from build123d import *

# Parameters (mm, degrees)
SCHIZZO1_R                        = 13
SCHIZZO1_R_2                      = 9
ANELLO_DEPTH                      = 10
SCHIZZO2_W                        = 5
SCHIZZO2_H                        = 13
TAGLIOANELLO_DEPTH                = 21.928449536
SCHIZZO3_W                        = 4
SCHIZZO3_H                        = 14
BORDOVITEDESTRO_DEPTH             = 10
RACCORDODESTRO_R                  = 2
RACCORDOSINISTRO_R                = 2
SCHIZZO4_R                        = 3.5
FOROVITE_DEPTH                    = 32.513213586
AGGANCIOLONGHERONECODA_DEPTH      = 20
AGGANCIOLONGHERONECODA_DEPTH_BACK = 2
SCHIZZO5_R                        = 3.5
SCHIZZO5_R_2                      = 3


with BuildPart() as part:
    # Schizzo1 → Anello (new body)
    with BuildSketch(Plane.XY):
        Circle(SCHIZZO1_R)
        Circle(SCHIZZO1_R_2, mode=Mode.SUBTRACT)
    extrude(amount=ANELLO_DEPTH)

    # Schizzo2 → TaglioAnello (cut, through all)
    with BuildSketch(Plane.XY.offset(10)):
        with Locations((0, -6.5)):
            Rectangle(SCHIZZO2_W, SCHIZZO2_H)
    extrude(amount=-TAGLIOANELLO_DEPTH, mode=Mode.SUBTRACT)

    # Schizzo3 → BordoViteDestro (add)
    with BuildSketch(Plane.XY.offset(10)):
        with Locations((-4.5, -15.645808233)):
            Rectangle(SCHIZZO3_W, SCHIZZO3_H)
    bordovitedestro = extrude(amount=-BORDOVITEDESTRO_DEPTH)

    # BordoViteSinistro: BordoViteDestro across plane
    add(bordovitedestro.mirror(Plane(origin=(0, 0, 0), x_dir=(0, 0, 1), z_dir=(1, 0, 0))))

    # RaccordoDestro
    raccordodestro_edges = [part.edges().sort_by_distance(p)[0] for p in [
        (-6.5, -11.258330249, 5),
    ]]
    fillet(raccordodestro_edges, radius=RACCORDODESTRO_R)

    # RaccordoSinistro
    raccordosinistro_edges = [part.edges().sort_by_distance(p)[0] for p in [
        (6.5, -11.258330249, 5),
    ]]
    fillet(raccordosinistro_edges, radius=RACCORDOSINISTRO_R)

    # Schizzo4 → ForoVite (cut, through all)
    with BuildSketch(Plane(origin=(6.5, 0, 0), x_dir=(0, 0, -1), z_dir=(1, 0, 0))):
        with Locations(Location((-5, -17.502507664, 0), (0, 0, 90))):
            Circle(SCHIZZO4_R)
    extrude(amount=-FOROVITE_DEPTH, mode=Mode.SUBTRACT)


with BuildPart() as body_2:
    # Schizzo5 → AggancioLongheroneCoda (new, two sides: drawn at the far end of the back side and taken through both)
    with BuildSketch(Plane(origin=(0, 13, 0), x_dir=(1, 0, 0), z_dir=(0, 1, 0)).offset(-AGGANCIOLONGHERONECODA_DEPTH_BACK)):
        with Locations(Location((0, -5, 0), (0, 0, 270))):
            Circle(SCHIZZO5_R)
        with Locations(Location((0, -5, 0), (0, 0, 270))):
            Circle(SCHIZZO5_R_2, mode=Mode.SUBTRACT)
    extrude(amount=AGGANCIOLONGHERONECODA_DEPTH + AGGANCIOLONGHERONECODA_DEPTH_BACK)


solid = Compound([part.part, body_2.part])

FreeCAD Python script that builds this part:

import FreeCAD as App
import Part
import Sketcher
Q = App.Units.Quantity


def edges_at(feature, points):
    """Names of the edges that pass closest to the given points."""
    edges = feature.Shape.Edges
    near = lambda p: min(range(len(edges)), key=lambda i: edges[i].distToShape(Part.Vertex(*p))[0])
    return sorted({f"Edge{near(p) + 1}" for p in points})


def add_polygon(sketch, points):
    """Adds a closed chain of lines whose ends are joined by coincident constraints."""
    first, n = sketch.GeometryCount, len(points)
    for a, b in zip(points, points[1:] + points[:1]):
        sketch.addGeometry(Part.LineSegment(App.Vector(*a, 0), App.Vector(*b, 0)), False)
    for i in range(n):
        sketch.addConstraint(Sketcher.Constraint("Coincident", first + i, 2, first + (i + 1) % n, 1))

doc = App.newDocument("Part")
body = doc.addObject("PartDesign::Body", "Body")

# Sketch on XY plane
sketch1 = doc.addObject("Sketcher::SketchObject", "Sketch")
body.addObject(sketch1)
sketch1.AttachmentSupport = (doc.XY_Plane, [""])
sketch1.MapMode = "FlatFace"
sketch1.addGeometry([
    Part.Circle(App.Vector(0, 0, 0), App.Vector(0, 0, 1), 13),
    Part.Circle(App.Vector(0, 0, 0), App.Vector(0, 0, 1), 9),
], False)
sketch1.addConstraint([
    Sketcher.Constraint("Coincident", 0, 3, -1, 1),
    Sketcher.Constraint("Coincident", 1, 3, -1, 1),
    Sketcher.Constraint("Diameter", 0, Q("26 mm")),
    Sketcher.Constraint("Diameter", 1, Q("18 mm")),
])
pad1 = doc.addObject("PartDesign::Pad", "Pad")
body.addObject(pad1)
pad1.Profile = sketch1
pad1.Length = 10

# Sketch on XY plane
sketch2 = doc.addObject("Sketcher::SketchObject", "Sketch001")
body.addObject(sketch2)
sketch2.AttachmentSupport = (doc.XY_Plane, [""])
sketch2.MapMode = "FlatFace"
sketch2.AttachmentOffset = App.Placement(App.Vector(0, 0, 10), App.Rotation())
add_polygon(sketch2, [(-2, 0), (-2, -13), (2, -13), (2, 0)])  # lines 0-3
sketch2.addConstraint([
    Sketcher.Constraint("Vertical", 0),
    Sketcher.Constraint("Horizontal", 1),
    Sketcher.Constraint("Vertical", 2),
    Sketcher.Constraint("Horizontal", 3),
    Sketcher.Constraint("Symmetric", 2, 2, 3, 2, -1, 1),
    Sketcher.Constraint("DistanceX", 1, 1, 1, 2, Q("5 mm")),
    Sketcher.Constraint("DistanceY", 0, 2, 0, 1, Q("13 mm")),
])
pocket1 = doc.addObject("PartDesign::Pocket", "Pocket")
body.addObject(pocket1)
pocket1.Profile = sketch2
pocket1.Type = "ThroughAll"

# Sketch on XY plane
sketch3 = doc.addObject("Sketcher::SketchObject", "Sketch002")
body.addObject(sketch3)
sketch3.AttachmentSupport = (doc.XY_Plane, [""])
sketch3.MapMode = "FlatFace"
sketch3.AttachmentOffset = App.Placement(App.Vector(0, 0, 10), App.Rotation())
add_polygon(sketch3, [(-6.5, -8.6), (-6.5, -22.6), (-2.5, -22.6), (-2.5, -8.6)])  # lines 0-3
sketch3.addConstraint([
    Sketcher.Constraint("Vertical", 0),
    Sketcher.Constraint("Horizontal", 1),
    Sketcher.Constraint("Vertical", 2),
    Sketcher.Constraint("Horizontal", 3),
    Sketcher.Constraint("DistanceX", 1, 1, 1, 2, Q("4 mm")),
    Sketcher.Constraint("DistanceY", 0, 2, 0, 1, Q("14 mm")),
    Sketcher.Constraint("DistanceX", 0, 2, -1, 1, Q("6.5 mm")),
    Sketcher.Constraint("DistanceY", 0, 2, -1, 1, Q("22.645808 mm")),
])
pad2 = doc.addObject("PartDesign::Pad", "Pad001")
body.addObject(pad2)
pad2.Profile = sketch3
pad2.Length = 10
pad2.Reversed = True
doc.recompute()

mirrored = doc.addObject("PartDesign::Mirrored", "Mirrored")
body.addObject(mirrored)
mirrored.Originals = [pad2]
mirrored.MirrorPlane = (doc.YZ_Plane, [""])
body.Tip = mirrored
doc.recompute()

fillet = doc.addObject("PartDesign::Fillet", "Fillet")
body.addObject(fillet)
fillet.Base = (mirrored, edges_at(mirrored, [(-6.5, -11.258, 5)]))
fillet.Radius = 2
doc.recompute()

fillet2 = doc.addObject("PartDesign::Fillet", "Fillet001")
body.addObject(fillet2)
fillet2.Base = (fillet, edges_at(fillet, [(6.5, -11.258, 5)]))
fillet2.Radius = 2

# Sketch on YZ plane
sketch4 = doc.addObject("Sketcher::SketchObject", "Sketch003")
body.addObject(sketch4)
sketch4.AttachmentSupport = (doc.YZ_Plane, [""])
sketch4.MapMode = "FlatFace"
sketch4.AttachmentOffset = App.Placement(App.Vector(0, 0, 6.5), App.Rotation())
sketch4.addGeometry(Part.Circle(App.Vector(-17.5, 5, 0), App.Vector(0, 0, 1), 3.5), False)
sketch4.addConstraint([
    Sketcher.Constraint("Diameter", 0, Q("7 mm")),
    Sketcher.Constraint("DistanceY", -1, 1, 0, 3, Q("5 mm")),
    Sketcher.Constraint("DistanceX", 0, 3, -1, 1, Q("17.502508 mm")),
])
pocket2 = doc.addObject("PartDesign::Pocket", "Pocket001")
body.addObject(pocket2)
pocket2.Profile = sketch4
pocket2.Type = "ThroughAll"
body2 = doc.addObject("PartDesign::Body", "Body001")

# Sketch on XZ plane
sketch5 = doc.addObject("Sketcher::SketchObject", "Sketch004")
body2.addObject(sketch5)
sketch5.AttachmentSupport = (doc.getObject("XZ_Plane001"), [""])
sketch5.MapMode = "FlatFace"
sketch5.AttachmentOffset = App.Placement(App.Vector(0, 0, -13), App.Rotation())
sketch5.addGeometry([
    Part.Circle(App.Vector(0, 5, 0), App.Vector(0, 0, 1), 3.5),
    Part.Circle(App.Vector(0, 5, 0), App.Vector(0, 0, 1), 3),
], False)
sketch5.addConstraint([
    Sketcher.Constraint("Coincident", 1, 3, 0, 3),
    Sketcher.Constraint("PointOnObject", 0, 3, -2),
    Sketcher.Constraint("Diameter", 0, Q("7 mm")),
    Sketcher.Constraint("Diameter", 1, Q("6 mm")),
    Sketcher.Constraint("DistanceY", -1, 1, 0, 3, Q("5 mm")),
])
pad3 = doc.addObject("PartDesign::Pad", "Pad002")
body2.addObject(pad3)
pad3.Profile = sketch5
pad3.Type = "TwoLengths"
pad3.Length = 20
pad3.Length2 = 2
pad3.Reversed = True

doc.recompute()
